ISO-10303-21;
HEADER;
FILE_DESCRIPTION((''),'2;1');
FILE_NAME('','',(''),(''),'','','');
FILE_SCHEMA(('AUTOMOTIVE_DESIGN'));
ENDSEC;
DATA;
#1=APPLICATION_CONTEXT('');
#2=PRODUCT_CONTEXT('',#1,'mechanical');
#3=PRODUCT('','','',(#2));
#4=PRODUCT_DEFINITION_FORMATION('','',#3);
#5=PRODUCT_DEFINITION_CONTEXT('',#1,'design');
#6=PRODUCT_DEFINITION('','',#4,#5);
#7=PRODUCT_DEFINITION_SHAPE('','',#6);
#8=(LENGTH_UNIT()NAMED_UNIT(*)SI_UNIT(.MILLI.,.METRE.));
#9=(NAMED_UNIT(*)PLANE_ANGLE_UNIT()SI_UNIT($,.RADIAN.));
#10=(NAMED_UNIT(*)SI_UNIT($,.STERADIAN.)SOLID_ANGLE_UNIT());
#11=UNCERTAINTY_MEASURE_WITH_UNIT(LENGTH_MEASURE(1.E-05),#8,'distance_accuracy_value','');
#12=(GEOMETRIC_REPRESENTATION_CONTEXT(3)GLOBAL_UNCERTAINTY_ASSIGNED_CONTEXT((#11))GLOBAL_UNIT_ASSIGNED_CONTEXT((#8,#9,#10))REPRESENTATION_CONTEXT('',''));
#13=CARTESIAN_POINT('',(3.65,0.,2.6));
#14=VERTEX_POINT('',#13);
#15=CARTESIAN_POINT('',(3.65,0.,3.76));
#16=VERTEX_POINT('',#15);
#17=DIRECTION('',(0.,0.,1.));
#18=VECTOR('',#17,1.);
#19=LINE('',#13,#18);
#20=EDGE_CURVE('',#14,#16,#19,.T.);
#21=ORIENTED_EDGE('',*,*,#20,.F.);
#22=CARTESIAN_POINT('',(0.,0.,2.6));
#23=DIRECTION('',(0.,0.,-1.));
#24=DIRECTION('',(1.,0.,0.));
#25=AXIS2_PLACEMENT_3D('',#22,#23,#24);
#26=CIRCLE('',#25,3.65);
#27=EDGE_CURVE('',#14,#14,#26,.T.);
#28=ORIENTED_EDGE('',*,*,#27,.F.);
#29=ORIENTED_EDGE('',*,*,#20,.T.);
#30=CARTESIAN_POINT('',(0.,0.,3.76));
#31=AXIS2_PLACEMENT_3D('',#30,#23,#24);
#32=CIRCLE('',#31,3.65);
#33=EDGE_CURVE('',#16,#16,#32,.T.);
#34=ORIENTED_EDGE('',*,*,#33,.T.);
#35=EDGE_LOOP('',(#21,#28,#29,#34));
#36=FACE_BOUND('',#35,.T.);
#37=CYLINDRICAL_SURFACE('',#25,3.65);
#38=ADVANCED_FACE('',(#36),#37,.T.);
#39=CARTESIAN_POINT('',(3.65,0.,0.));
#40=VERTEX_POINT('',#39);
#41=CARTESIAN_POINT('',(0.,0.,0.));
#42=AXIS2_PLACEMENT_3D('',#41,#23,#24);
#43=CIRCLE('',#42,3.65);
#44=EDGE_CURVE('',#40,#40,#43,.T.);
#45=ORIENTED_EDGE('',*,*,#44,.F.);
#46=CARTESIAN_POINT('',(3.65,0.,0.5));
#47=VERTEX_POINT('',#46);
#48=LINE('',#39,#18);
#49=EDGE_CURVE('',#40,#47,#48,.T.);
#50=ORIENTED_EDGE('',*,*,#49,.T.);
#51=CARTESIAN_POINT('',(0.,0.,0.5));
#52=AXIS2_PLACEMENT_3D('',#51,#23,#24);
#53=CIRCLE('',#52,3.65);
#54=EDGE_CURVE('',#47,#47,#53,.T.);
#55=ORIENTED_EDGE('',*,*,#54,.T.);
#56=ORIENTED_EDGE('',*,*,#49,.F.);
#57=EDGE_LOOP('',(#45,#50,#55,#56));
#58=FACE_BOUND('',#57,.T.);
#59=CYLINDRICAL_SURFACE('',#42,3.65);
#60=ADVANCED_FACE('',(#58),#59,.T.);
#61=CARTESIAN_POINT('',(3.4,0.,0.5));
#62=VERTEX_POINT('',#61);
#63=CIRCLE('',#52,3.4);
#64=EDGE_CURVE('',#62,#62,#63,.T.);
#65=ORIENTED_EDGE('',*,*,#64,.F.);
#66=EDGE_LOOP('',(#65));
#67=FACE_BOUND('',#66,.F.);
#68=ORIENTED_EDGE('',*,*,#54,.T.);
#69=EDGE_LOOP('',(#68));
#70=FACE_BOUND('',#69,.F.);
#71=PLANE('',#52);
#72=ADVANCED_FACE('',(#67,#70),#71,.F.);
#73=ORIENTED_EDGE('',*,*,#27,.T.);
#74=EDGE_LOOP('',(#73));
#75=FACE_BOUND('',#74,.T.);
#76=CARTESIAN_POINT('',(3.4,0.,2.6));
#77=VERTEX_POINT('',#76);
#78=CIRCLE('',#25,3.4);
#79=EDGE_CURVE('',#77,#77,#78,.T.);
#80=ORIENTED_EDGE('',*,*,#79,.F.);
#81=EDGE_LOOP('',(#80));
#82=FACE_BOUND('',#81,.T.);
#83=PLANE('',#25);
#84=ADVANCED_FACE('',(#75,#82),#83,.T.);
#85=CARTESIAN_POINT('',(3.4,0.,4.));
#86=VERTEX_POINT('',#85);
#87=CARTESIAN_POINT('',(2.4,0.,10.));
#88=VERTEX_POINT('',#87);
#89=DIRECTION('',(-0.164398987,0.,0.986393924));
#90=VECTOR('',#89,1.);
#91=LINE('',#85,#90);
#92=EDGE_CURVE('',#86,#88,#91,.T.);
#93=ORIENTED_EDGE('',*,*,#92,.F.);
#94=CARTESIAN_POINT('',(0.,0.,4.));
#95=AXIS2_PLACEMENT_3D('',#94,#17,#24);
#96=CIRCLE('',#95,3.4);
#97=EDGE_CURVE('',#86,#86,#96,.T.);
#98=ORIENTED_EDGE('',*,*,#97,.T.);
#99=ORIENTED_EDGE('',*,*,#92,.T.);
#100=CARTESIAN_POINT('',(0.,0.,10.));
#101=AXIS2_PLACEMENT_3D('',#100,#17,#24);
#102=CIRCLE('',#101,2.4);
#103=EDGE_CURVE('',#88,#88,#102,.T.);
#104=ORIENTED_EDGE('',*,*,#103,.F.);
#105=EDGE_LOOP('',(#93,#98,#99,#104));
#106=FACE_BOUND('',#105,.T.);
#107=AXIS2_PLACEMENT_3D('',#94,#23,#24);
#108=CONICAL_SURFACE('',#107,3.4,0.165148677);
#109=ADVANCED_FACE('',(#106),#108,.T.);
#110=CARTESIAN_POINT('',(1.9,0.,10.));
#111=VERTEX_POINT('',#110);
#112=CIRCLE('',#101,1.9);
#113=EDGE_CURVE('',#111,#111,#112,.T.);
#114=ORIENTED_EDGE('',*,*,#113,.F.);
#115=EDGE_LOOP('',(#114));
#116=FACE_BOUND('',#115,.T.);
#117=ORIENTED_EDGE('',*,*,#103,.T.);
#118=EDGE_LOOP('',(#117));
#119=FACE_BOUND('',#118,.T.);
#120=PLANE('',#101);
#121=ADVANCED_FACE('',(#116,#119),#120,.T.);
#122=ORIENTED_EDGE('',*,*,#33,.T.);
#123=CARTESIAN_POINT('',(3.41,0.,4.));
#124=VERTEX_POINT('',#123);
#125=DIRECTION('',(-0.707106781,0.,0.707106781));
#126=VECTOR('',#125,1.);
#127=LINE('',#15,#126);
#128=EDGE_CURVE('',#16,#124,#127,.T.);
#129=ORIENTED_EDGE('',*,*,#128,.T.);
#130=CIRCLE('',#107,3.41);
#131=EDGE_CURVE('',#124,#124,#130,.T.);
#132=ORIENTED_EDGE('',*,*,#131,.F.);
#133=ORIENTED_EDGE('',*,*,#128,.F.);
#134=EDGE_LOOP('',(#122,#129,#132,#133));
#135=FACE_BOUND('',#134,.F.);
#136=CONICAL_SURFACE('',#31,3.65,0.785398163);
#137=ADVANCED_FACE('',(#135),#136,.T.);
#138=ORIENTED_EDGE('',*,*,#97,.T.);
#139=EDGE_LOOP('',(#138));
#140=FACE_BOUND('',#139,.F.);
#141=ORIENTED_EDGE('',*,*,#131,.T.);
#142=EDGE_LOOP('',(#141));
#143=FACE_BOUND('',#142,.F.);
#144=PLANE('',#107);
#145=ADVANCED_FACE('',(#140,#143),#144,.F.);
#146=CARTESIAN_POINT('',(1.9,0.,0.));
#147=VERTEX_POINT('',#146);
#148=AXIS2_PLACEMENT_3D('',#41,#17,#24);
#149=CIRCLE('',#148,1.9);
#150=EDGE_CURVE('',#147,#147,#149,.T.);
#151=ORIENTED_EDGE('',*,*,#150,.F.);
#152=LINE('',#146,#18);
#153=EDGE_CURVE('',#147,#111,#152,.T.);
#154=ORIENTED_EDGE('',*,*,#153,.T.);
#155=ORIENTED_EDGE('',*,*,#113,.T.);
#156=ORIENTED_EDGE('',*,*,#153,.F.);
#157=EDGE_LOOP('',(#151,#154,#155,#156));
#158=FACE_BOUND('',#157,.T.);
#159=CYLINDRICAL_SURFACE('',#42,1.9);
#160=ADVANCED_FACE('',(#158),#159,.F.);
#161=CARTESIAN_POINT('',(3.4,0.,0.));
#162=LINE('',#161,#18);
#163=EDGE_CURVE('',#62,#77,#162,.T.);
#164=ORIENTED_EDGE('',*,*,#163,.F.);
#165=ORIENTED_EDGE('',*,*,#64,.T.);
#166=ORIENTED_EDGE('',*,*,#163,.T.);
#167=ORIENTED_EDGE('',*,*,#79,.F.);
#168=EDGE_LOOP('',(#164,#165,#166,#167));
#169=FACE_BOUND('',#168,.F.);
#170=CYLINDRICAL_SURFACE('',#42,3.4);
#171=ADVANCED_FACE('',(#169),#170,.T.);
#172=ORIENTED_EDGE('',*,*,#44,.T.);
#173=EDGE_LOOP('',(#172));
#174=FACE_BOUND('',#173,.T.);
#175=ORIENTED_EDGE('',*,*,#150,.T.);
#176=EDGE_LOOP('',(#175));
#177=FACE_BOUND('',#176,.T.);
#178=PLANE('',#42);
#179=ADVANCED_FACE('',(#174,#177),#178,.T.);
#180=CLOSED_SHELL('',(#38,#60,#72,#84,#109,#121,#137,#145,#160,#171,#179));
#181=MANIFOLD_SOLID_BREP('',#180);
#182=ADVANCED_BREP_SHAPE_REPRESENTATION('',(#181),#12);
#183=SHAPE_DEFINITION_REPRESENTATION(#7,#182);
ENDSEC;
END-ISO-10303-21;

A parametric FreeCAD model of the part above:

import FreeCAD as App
import Part
import Sketcher
from FreeCAD import Vector


def edges_at(feature, points):
    """Names of the edges that pass closest to the given points."""
    edges = feature.Shape.Edges
    near = lambda p: min(range(len(edges)), key=lambda i: edges[i].distToShape(Part.Vertex(*p))[0])
    return sorted({f"Edge{near(p) + 1}" for p in points})

doc = App.newDocument("Part")
body = doc.addObject("PartDesign::Body", "Body")

sketch1 = body.newObject("Sketcher::SketchObject", "Sketch")
sketch1.AttachmentSupport = (doc.getObject("XY_Plane"), [""])
sketch1.MapMode = "FlatFace"
sketch1.addGeometry([
    Part.Circle(Vector(0, 0, 0), Vector(0, 0, 1), 3.4),
    Part.Circle(Vector(0, 0, 0), Vector(0, 0, 1), 1.9),
], False)
sketch1.addConstraint([
    Sketcher.Constraint("Coincident", 0, 3, -1, 1),
    Sketcher.Constraint("Coincident", 1, 3, -1, 1),
    Sketcher.Constraint("Diameter", 0, 6.8),
    Sketcher.Constraint("Diameter", 1, 3.8),
])
pad1 = body.newObject("PartDesign::Pad", "Pad")
pad1.Profile = sketch1
pad1.Length = 10
doc.recompute()

chamfer = body.newObject("PartDesign::Chamfer", "Chamfer")
chamfer.Base = (pad1, edges_at(pad1, [(-3.4, 0, 10)]))
chamfer.ChamferType = "Two distances"
chamfer.Size = 6
chamfer.Size2 = 1

sketch2 = body.newObject("Sketcher::SketchObject", "Sketch001")
sketch2.AttachmentSupport = (doc.getObject("XY_Plane"), [""])
sketch2.MapMode = "FlatFace"
sketch2.AttachmentOffset = App.Placement(Vector(0, 0, 2.6), App.Rotation())
sketch2.addGeometry([
    Part.Circle(Vector(0, 0, 0), Vector(0, 0, 1), 3.6),
    Part.Circle(Vector(0, 0, 0), Vector(0, 0, 1), 3.4),
], False)
sketch2.addConstraint([
    Sketcher.Constraint("Coincident", 0, 3, -1, 1),
    Sketcher.Constraint("Coincident", 1, 3, -1, 1),
    Sketcher.Constraint("Diameter", 0, 7.3),
    Sketcher.Constraint("Diameter", 1, 6.8),
])
pad2 = body.newObject("PartDesign::Pad", "Pad001")
pad2.Profile = sketch2
pad2.Length = 1.4

sketch3 = body.newObject("Sketcher::SketchObject", "Sketch002")
sketch3.AttachmentSupport = (doc.getObject("XY_Plane"), [""])
sketch3.MapMode = "FlatFace"
sketch3.addGeometry([
    Part.Circle(Vector(0, 0, 0), Vector(0, 0, 1), 3.6),
    Part.Circle(Vector(0, 0, 0), Vector(0, 0, 1), 3.4),
], False)
sketch3.addConstraint([
    Sketcher.Constraint("Coincident", 0, 3, -1, 1),
    Sketcher.Constraint("Coincident", 1, 3, -1, 1),
    Sketcher.Constraint("Diameter", 0, 7.3),
    Sketcher.Constraint("Diameter", 1, 6.8),
])
pad3 = body.newObject("PartDesign::Pad", "Pad002")
pad3.Profile = sketch3
pad3.Length = 0.5
doc.recompute()

chamfer2 = body.newObject("PartDesign::Chamfer", "Chamfer001")
chamfer2.Base = (pad3, edges_at(pad3, [(-3.65, 0, 4)]))
chamfer2.Size = 0.24

doc.recompute()
